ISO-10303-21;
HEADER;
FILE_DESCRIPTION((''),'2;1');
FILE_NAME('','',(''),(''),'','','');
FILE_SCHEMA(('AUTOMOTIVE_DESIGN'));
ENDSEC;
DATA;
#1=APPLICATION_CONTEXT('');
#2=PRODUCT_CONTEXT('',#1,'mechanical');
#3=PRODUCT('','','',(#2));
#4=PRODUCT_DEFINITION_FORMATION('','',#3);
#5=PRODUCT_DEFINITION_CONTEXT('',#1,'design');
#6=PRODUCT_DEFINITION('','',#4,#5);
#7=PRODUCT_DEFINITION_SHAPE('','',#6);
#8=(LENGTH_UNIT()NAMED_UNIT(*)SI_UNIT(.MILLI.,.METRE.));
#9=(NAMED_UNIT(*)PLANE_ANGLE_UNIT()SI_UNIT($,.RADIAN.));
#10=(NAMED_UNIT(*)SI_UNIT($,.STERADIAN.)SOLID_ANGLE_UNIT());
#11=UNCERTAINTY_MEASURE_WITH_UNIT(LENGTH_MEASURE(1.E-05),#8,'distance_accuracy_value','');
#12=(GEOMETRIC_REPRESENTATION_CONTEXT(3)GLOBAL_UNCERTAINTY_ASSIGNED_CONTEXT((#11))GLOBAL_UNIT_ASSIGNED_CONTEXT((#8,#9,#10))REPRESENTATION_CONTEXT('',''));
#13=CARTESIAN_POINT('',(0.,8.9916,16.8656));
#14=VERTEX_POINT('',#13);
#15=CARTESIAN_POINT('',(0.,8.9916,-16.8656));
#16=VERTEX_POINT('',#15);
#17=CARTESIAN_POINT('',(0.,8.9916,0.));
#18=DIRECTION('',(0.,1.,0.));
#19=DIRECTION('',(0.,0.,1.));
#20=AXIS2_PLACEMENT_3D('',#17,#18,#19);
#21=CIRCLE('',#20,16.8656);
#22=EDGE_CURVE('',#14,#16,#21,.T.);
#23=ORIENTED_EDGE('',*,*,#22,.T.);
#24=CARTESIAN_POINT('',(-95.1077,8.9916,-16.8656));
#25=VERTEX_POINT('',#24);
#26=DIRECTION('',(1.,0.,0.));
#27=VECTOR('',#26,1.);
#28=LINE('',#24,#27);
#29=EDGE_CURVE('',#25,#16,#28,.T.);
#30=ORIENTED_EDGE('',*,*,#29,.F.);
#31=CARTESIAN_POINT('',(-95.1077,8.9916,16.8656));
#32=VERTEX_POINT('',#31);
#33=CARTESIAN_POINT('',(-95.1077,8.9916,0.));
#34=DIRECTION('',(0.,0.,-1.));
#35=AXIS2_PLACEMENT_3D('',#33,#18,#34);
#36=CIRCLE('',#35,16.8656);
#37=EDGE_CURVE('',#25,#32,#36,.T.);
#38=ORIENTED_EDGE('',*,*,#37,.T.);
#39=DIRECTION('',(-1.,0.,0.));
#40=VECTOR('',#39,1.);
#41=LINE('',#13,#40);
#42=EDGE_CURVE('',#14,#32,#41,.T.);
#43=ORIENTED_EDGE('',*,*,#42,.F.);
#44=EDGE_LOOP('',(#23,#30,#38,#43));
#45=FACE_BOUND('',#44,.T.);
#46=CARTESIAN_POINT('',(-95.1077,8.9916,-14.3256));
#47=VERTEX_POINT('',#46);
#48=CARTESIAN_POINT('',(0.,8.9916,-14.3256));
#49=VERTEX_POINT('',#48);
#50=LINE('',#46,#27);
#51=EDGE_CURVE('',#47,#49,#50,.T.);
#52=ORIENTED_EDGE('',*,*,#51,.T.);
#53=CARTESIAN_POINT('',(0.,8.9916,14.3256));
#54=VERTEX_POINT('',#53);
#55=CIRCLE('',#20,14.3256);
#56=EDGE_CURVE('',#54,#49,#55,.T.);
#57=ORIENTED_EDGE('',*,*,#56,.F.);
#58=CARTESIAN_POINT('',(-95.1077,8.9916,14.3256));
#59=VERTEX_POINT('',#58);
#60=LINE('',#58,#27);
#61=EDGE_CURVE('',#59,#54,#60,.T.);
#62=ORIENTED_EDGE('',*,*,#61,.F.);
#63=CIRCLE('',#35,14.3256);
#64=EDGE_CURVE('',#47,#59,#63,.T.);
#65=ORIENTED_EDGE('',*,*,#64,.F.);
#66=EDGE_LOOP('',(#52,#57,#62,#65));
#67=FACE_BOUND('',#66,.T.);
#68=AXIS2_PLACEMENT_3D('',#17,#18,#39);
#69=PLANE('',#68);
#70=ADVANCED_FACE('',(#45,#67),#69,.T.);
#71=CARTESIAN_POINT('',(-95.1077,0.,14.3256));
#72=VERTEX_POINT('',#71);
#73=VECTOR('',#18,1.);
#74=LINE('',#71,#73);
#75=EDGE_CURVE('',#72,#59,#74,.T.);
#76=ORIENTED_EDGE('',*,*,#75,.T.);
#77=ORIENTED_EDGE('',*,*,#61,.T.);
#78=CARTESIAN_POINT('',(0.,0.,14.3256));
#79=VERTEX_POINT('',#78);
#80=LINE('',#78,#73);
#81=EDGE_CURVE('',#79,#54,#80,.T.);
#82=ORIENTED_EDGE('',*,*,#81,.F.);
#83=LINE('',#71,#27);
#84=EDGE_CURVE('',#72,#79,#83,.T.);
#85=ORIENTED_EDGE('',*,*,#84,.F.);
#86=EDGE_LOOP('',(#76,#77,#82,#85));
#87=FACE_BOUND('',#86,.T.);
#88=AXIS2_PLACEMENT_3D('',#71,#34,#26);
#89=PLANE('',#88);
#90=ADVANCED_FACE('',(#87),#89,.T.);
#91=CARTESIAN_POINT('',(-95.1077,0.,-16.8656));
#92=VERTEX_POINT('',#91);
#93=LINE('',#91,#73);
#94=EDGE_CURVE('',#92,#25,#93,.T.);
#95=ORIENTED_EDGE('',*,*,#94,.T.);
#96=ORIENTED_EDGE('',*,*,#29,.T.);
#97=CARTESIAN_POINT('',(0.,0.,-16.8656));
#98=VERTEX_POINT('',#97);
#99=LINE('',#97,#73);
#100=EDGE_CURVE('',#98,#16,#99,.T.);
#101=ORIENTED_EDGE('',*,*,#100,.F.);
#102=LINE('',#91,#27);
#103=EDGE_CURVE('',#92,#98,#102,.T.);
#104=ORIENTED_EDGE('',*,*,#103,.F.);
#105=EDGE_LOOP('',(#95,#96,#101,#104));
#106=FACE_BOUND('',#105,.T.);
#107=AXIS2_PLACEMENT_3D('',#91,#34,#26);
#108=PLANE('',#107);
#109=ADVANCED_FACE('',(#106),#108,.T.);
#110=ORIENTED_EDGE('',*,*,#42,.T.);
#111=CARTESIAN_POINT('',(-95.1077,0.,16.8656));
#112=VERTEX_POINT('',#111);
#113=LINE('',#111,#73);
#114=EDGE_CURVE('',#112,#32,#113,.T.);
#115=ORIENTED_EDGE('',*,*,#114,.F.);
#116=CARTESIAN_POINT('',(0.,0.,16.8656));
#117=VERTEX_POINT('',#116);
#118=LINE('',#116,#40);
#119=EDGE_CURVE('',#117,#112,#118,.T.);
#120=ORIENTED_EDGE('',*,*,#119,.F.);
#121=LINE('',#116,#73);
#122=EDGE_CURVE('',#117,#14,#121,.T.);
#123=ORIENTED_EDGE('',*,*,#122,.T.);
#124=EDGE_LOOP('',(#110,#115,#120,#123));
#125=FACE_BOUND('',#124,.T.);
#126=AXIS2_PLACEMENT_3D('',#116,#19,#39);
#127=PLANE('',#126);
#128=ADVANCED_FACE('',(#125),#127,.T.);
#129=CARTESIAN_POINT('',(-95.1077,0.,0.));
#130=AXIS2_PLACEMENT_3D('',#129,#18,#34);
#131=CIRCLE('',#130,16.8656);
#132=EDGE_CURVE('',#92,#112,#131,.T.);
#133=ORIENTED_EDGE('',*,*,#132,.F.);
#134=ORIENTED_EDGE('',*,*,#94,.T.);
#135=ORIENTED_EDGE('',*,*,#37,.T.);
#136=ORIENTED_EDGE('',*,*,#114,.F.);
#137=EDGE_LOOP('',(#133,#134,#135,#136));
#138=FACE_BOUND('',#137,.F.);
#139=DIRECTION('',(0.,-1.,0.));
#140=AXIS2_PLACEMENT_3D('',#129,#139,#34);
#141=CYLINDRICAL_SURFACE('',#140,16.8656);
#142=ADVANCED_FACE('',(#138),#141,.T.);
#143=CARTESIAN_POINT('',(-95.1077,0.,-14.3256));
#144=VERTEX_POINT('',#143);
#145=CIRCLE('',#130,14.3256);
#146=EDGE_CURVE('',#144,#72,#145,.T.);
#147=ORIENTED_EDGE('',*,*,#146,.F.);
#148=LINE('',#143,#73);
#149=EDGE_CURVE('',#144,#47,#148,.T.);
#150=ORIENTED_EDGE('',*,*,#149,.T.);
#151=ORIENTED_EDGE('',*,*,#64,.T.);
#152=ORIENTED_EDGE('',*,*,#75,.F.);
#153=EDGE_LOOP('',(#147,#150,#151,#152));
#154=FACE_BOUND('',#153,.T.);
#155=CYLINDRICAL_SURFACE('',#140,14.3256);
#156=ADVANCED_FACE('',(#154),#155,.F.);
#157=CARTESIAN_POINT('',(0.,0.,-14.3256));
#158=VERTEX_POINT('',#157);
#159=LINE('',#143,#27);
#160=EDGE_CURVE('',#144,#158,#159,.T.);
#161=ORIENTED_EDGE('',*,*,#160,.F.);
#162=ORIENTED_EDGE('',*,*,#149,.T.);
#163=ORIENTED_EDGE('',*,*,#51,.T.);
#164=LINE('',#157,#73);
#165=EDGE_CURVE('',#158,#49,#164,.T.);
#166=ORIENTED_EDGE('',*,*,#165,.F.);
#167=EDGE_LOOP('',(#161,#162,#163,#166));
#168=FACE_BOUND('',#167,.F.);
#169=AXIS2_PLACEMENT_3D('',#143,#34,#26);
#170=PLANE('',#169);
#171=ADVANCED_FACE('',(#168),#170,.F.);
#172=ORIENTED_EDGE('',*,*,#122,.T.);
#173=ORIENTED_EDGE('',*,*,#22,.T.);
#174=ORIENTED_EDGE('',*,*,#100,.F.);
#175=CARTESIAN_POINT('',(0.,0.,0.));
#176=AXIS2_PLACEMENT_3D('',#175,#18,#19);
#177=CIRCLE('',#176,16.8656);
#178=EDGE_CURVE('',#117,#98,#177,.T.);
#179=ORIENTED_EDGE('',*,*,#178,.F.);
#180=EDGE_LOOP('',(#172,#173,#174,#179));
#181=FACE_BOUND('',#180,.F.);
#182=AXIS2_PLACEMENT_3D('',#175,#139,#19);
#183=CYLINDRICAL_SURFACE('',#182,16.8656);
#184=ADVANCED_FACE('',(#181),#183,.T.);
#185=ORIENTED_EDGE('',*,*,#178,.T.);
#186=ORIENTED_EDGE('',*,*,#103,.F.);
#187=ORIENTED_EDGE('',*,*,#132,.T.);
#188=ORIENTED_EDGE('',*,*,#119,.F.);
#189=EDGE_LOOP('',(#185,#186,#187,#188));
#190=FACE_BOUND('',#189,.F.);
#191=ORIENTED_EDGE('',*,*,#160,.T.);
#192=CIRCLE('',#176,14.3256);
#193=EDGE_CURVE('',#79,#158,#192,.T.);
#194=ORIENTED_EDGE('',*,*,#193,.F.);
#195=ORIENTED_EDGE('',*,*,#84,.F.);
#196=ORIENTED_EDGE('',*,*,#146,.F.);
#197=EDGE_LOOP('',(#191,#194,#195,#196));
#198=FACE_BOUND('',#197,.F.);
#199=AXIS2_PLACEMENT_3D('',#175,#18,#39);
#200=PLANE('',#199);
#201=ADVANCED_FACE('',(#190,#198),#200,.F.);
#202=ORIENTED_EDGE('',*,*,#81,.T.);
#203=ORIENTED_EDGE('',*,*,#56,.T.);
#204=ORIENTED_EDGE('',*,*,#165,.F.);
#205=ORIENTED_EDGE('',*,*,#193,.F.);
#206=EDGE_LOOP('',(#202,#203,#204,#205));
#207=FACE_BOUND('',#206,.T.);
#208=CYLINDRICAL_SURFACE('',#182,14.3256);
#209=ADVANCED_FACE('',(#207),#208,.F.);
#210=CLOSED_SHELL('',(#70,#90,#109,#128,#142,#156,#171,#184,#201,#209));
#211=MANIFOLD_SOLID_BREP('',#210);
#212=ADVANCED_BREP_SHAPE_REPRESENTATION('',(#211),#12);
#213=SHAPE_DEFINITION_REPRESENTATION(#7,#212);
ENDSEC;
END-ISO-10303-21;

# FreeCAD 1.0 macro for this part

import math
import FreeCAD as App
import Part
import Sketcher
from FreeCAD import Vector
Q = App.Units.Quantity

doc = App.newDocument("Part")
body = doc.addObject("PartDesign::Body", "Body")

# Sketch on XZ plane
sketch1 = body.newObject("Sketcher::SketchObject", "Sketch")
sketch1.AttachmentSupport = (doc.getObject("XZ_Plane"), [""])
sketch1.MapMode = "FlatFace"
sketch1.addGeometry(Part.LineSegment(Vector(-95.1077, 16.8656, 0), Vector(0, 16.8656, 0)), False)
sketch1.addGeometry(Part.ArcOfCircle(Part.Circle(Vector(0, 0, 0), Vector(0, 0, 1), 16.8656), math.radians(-90), math.radians(90)), False)
sketch1.addGeometry(Part.LineSegment(Vector(0, -16.8656, 0), Vector(-95.1077, -16.8656, 0)), False)
sketch1.addGeometry(Part.ArcOfCircle(Part.Circle(Vector(-95.1077, 0, 0), Vector(0, 0, 1), 16.8656), math.radians(90), math.radians(270)), False)
sketch1.addGeometry(Part.LineSegment(Vector(0, 14.3256, 0), Vector(-95.1077, 14.3256, 0)), False)
sketch1.addGeometry(Part.ArcOfCircle(Part.Circle(Vector(-95.1077, 0, 0), Vector(0, 0, 1), 14.3256), math.radians(90), math.radians(270)), False)
sketch1.addGeometry(Part.LineSegment(Vector(-95.1077, -14.3256, 0), Vector(0, -14.3256, 0)), False)
sketch1.addGeometry(Part.ArcOfCircle(Part.Circle(Vector(0, 0, 0), Vector(0, 0, 1), 14.3256), math.radians(-90), math.radians(90)), False)
sketch1.addConstraint(Sketcher.Constraint("Tangent", 0, 2, 1, 2))
sketch1.addConstraint(Sketcher.Constraint("Tangent", 1, 1, 2, 1))
sketch1.addConstraint(Sketcher.Constraint("Tangent", 2, 2, 3, 2))
sketch1.addConstraint(Sketcher.Constraint("Tangent", 3, 1, 0, 1))
sketch1.addConstraint(Sketcher.Constraint("Tangent", 4, 2, 5, 1))
sketch1.addConstraint(Sketcher.Constraint("Tangent", 5, 2, 6, 1))
sketch1.addConstraint(Sketcher.Constraint("Tangent", 6, 2, 7, 1))
sketch1.addConstraint(Sketcher.Constraint("Tangent", 7, 2, 4, 1))
sketch1.addConstraint(Sketcher.Constraint("Horizontal", 0))
sketch1.addConstraint(Sketcher.Constraint("Horizontal", 2))
sketch1.addConstraint(Sketcher.Constraint("Horizontal", 4))
sketch1.addConstraint(Sketcher.Constraint("Horizontal", 6))
sketch1.addConstraint(Sketcher.Constraint("Coincident", 1, 3, -1, 1))
sketch1.addConstraint(Sketcher.Constraint("Coincident", 7, 3, -1, 1))
sketch1.addConstraint(Sketcher.Constraint("Vertical", 5, 3, 2, 2))
sketch1.addConstraint(Sketcher.Constraint("Radius", 5, Q("0.564 in")))
sketch1.addConstraint(Sketcher.Constraint("DistanceY", 4, 2, 3, 1, Q("0.1 in")))
sketch1.addConstraint(Sketcher.Constraint("DistanceX", 0, 1, 0, 2, Q("3.7444 in")))
pad1 = body.newObject("PartDesign::Pad", "Pad")
pad1.Profile = sketch1
pad1.Length = Q("0.354 in")
pad1.Reversed = True

doc.recompute()
